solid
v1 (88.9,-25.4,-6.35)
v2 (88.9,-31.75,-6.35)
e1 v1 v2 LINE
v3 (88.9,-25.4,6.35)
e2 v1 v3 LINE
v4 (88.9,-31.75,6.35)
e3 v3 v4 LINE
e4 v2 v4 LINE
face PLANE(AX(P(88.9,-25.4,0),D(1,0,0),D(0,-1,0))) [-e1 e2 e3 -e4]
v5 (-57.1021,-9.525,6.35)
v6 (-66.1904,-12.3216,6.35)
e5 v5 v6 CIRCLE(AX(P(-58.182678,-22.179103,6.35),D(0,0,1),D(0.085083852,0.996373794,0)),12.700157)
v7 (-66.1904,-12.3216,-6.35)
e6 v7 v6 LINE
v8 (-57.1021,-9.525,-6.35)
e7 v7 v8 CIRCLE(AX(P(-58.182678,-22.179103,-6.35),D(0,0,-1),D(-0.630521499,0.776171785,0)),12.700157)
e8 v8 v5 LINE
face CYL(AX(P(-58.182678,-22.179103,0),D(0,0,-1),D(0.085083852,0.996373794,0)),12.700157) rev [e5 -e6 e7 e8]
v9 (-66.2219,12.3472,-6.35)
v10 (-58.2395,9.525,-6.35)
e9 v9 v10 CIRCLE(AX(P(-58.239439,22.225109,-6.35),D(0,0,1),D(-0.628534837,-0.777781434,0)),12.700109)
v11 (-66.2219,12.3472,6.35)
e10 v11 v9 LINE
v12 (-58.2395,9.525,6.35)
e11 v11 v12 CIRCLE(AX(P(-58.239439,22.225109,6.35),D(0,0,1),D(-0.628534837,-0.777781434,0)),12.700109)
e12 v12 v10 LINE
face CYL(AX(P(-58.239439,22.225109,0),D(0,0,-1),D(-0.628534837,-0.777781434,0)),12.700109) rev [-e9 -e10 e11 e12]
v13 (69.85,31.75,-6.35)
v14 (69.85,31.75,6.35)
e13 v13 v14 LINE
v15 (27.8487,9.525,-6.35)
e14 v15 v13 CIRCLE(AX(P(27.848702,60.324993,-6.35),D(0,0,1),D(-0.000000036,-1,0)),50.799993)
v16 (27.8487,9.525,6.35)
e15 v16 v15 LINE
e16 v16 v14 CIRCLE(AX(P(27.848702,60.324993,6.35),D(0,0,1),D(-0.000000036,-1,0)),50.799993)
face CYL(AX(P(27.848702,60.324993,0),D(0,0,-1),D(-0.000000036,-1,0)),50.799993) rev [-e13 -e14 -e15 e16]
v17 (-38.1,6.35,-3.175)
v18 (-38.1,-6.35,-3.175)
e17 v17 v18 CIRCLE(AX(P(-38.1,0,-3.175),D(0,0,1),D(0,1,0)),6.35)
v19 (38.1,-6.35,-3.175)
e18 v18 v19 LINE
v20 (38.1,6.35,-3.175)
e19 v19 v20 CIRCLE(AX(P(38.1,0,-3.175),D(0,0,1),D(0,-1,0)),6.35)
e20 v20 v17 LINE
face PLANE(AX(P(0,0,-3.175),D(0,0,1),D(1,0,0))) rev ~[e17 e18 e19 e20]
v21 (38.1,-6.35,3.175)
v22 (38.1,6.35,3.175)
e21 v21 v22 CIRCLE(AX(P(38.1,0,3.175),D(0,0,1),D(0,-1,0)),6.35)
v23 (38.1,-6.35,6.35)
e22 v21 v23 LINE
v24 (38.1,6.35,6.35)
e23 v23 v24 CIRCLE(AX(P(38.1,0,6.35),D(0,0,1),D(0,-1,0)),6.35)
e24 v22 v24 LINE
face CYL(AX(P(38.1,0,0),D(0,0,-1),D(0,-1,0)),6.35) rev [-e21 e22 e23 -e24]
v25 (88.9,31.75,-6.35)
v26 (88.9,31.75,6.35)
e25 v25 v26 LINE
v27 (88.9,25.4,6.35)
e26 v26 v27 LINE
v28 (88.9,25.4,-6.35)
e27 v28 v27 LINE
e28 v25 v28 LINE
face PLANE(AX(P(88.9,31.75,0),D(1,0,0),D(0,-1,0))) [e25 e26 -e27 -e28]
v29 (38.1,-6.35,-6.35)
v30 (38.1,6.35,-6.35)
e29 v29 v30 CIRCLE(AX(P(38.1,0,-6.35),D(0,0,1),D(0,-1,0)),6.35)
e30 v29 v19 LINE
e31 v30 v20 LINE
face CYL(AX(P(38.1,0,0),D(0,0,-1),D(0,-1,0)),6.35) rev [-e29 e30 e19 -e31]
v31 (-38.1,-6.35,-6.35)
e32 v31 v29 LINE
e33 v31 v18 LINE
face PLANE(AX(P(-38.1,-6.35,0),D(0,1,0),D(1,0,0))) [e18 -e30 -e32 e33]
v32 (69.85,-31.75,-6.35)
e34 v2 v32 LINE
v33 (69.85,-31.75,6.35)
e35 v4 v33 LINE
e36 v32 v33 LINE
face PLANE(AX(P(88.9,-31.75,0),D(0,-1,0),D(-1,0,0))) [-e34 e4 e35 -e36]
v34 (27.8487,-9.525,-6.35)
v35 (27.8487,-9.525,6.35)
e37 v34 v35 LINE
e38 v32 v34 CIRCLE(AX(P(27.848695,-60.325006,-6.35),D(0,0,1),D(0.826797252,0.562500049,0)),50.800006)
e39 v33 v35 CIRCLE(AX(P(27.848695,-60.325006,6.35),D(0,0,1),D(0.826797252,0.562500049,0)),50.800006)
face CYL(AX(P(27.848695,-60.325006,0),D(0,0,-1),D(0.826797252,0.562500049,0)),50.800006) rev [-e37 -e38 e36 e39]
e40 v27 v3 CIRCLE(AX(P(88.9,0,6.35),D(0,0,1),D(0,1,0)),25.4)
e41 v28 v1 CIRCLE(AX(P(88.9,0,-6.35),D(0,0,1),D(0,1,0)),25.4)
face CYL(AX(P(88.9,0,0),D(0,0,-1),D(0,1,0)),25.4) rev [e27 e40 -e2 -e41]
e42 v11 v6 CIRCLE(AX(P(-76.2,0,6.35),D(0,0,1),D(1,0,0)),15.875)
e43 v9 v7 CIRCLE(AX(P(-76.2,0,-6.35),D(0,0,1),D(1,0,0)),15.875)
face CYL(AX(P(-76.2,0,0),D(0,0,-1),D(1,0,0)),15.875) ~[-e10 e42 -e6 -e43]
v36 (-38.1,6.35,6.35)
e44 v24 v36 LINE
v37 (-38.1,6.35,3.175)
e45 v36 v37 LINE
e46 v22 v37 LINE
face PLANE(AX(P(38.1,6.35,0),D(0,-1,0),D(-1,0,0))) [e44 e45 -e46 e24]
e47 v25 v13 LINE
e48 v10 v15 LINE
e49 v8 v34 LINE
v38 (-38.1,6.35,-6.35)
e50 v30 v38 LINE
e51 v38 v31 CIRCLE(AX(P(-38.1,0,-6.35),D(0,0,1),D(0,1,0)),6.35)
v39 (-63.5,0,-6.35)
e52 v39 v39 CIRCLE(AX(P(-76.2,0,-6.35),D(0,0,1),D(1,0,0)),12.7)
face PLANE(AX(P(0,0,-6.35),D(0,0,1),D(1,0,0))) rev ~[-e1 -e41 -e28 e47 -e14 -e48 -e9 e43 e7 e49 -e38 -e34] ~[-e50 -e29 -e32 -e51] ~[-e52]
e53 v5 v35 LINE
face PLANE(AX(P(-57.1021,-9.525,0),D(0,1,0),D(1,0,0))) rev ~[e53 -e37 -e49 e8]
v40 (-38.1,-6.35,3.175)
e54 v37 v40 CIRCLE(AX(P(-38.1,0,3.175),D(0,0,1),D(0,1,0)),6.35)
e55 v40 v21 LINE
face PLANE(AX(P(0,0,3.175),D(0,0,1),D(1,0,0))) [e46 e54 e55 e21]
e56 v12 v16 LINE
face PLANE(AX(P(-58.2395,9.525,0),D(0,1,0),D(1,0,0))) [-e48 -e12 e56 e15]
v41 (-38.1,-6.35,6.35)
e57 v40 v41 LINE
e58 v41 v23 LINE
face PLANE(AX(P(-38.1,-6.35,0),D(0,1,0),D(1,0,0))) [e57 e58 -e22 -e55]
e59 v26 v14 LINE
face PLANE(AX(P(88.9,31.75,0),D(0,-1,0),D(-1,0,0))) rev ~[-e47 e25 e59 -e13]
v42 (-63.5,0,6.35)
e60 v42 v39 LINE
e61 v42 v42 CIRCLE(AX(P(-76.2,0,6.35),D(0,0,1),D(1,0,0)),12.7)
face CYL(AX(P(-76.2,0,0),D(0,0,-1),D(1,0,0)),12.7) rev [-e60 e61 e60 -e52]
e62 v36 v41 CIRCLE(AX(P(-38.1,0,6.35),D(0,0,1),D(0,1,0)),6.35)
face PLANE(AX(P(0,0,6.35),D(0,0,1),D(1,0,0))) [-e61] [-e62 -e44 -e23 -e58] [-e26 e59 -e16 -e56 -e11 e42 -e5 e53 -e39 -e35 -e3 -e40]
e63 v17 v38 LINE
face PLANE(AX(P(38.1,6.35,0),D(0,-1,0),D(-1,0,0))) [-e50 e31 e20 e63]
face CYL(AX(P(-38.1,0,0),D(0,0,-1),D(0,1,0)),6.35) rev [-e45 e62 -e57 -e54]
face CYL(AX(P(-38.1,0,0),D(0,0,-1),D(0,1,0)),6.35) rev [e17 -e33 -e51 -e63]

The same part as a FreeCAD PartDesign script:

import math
import FreeCAD as App
import Part
import Sketcher
from FreeCAD import Vector
Q = App.Units.Quantity

doc = App.newDocument("Part")
body = doc.addObject("PartDesign::Body", "Body")

sketch1 = body.newObject("Sketcher::SketchObject", "Sketch")
sketch1.AttachmentSupport = (doc.getObject("XY_Plane"), [""])
sketch1.MapMode = "FlatFace"
sketch1.addGeometry([
    Part.ArcOfCircle(Part.Circle(Vector(-76, 0, 0), Vector(0, 0, 1), 16), math.radians(51), math.radians(309)),
    Part.ArcOfCircle(Part.Circle(Vector(-58, -22, 0), Vector(0, 0, 1), 13), math.radians(85), math.radians(129)),
    Part.LineSegment(Vector(-57, -10, 0), Vector(28, -10, 0)),
    Part.ArcOfCircle(Part.Circle(Vector(28, -60, 0), Vector(0, 0, 1), 51), math.radians(34), math.radians(90)),
    Part.LineSegment(Vector(70, -32, 0), Vector(89, -32, 0)),
    Part.LineSegment(Vector(89, -32, 0), Vector(89, -25, 0)),
    Part.ArcOfCircle(Part.Circle(Vector(89, 0, 0), Vector(0, 0, 1), 25), math.radians(90), math.radians(270)),
    Part.LineSegment(Vector(89, 25, 0), Vector(89, 32, 0)),
    Part.LineSegment(Vector(89, 32, 0), Vector(70, 32, 0)),
    Part.ArcOfCircle(Part.Circle(Vector(28, 60, 0), Vector(0, 0, 1), 51), math.radians(-90), math.radians(-34)),
    Part.LineSegment(Vector(28, 10, 0), Vector(-58, 10, 0)),
    Part.ArcOfCircle(Part.Circle(Vector(-58, 22, 0), Vector(0, 0, 1), 13), math.radians(-129), math.radians(-90)),
    Part.Circle(Vector(-76, 0, 0), Vector(0, 0, 1), 13),
    Part.LineSegment(Vector(-38, 6, 0), Vector(38, 6, 0)),
    Part.ArcOfCircle(Part.Circle(Vector(38, 0, 0), Vector(0, 0, 1), 6), math.radians(-90), math.radians(90)),
    Part.LineSegment(Vector(38, -6, 0), Vector(-38, -6, 0)),
    Part.ArcOfCircle(Part.Circle(Vector(-38, 0, 0), Vector(0, 0, 1), 6), math.radians(90), math.radians(270)),
], False)
sketch1.addConstraint([
    Sketcher.Constraint("Tangent", 0, 2, 1, 2),
    Sketcher.Constraint("Coincident", 1, 1, 2, 1),
    Sketcher.Constraint("Tangent", 2, 2, 3, 2),
    Sketcher.Constraint("Coincident", 3, 1, 4, 1),
    Sketcher.Constraint("Coincident", 4, 2, 5, 1),
    Sketcher.Constraint("Coincident", 5, 2, 6, 2),
    Sketcher.Constraint("Coincident", 6, 1, 7, 1),
    Sketcher.Constraint("Coincident", 7, 2, 8, 1),
    Sketcher.Constraint("Coincident", 8, 2, 9, 2),
    Sketcher.Constraint("Tangent", 9, 1, 10, 1),
    Sketcher.Constraint("Tangent", 10, 2, 11, 2),
    Sketcher.Constraint("Tangent", 11, 1, 0, 1),
    Sketcher.Constraint("Tangent", 13, 2, 14, 2),
    Sketcher.Constraint("Tangent", 14, 1, 15, 1),
    Sketcher.Constraint("Tangent", 15, 2, 16, 2),
    Sketcher.Constraint("Tangent", 16, 1, 13, 1),
    Sketcher.Constraint("Horizontal", 2),
    Sketcher.Constraint("Horizontal", 4),
    Sketcher.Constraint("Vertical", 5),
    Sketcher.Constraint("Vertical", 7),
    Sketcher.Constraint("Horizontal", 8),
    Sketcher.Constraint("Horizontal", 10),
    Sketcher.Constraint("Horizontal", 13),
    Sketcher.Constraint("Horizontal", 15),
    Sketcher.Constraint("Coincident", 12, 3, 0, 3),
    Sketcher.Constraint("Equal", 3, 9),
    Sketcher.Constraint("Equal", 1, 11),
    Sketcher.Constraint("Equal", 11, 12),
    Sketcher.Constraint("Symmetric", 14, 3, 16, 3, -1, 1),
    Sketcher.Constraint("Symmetric", 3, 3, 9, 3, -1),
    Sketcher.Constraint("Symmetric", 5, 2, 6, 1, -1),
    Sketcher.Constraint("PointOnObject", 0, 3, -1),
    Sketcher.Constraint("Vertical", 6, 3, 4, 2),
    Sketcher.Constraint("Vertical", 3, 1, 8, 2),
    Sketcher.Constraint("Diameter", 12, Q("1 in")),
    Sketcher.Constraint("Radius", 3, Q("2 in")),
    Sketcher.Constraint("Radius", 6, Q("1 in")),
    Sketcher.Constraint("DistanceX", 13, 1, 13, 2, Q("3 in")),
    Sketcher.Constraint("Radius", 14, Q("0.25 in")),
    Sketcher.Constraint("DistanceX", 0, 3, -1, 1, Q("3 in")),
    Sketcher.Constraint("Radius", 0, Q("0.625 in")),
    Sketcher.Constraint("DistanceX", 14, 3, 6, 3, Q("2 in")),
    Sketcher.Constraint("DistanceY", 13, 2, 8, 2, Q("1 in")),
    Sketcher.Constraint("DistanceX", 4, 1, 4, 2, Q("0.75 in")),
    Sketcher.Constraint("DistanceY", 2, 2, 9, 1, Q("0.75 in")),
    Sketcher.Constraint("DistanceX", 2, 1, 2, 2, 84.9508),
])
pad1 = body.newObject("PartDesign::Pad", "Pad")
pad1.Profile = sketch1
pad1.Length = Q("0.5 in")
pad1.Midplane = True

sketch2 = body.newObject("Sketcher::SketchObject", "Sketch001")
sketch2.AttachmentSupport = (doc.getObject("XY_Plane"), [""])
sketch2.MapMode = "FlatFace"
sketch2.addGeometry([
    Part.ArcOfCircle(Part.Circle(Vector(-38, 0, 0), Vector(0, 0, 1), 6), math.radians(90), math.radians(270)),
    Part.LineSegment(Vector(-38, -6, 0), Vector(38, -6, 0)),
    Part.ArcOfCircle(Part.Circle(Vector(38, 0, 0), Vector(0, 0, 1), 6), math.radians(-90), math.radians(90)),
    Part.LineSegment(Vector(38, 6, 0), Vector(-38, 6, 0)),
], False)
sketch2.addConstraint([
    Sketcher.Constraint("Tangent", 0, 2, 1, 1),
    Sketcher.Constraint("Tangent", 1, 2, 2, 1),
    Sketcher.Constraint("Tangent", 2, 2, 3, 1),
    Sketcher.Constraint("Tangent", 3, 2, 0, 1),
    Sketcher.Constraint("Horizontal", 1),
    Sketcher.Constraint("Horizontal", 3),
    Sketcher.Constraint("Symmetric", 0, 3, 2, 3, -1, 1),
    Sketcher.Constraint("DistanceX", 1, 1, 1, 2, Q("3 in")),
    Sketcher.Constraint("Radius", 0, Q("0.25 in")),
])
pad2 = body.newObject("PartDesign::Pad", "Pad001")
pad2.Profile = sketch2
pad2.Length = Q("0.25 in")
pad2.Midplane = True

doc.recompute()
